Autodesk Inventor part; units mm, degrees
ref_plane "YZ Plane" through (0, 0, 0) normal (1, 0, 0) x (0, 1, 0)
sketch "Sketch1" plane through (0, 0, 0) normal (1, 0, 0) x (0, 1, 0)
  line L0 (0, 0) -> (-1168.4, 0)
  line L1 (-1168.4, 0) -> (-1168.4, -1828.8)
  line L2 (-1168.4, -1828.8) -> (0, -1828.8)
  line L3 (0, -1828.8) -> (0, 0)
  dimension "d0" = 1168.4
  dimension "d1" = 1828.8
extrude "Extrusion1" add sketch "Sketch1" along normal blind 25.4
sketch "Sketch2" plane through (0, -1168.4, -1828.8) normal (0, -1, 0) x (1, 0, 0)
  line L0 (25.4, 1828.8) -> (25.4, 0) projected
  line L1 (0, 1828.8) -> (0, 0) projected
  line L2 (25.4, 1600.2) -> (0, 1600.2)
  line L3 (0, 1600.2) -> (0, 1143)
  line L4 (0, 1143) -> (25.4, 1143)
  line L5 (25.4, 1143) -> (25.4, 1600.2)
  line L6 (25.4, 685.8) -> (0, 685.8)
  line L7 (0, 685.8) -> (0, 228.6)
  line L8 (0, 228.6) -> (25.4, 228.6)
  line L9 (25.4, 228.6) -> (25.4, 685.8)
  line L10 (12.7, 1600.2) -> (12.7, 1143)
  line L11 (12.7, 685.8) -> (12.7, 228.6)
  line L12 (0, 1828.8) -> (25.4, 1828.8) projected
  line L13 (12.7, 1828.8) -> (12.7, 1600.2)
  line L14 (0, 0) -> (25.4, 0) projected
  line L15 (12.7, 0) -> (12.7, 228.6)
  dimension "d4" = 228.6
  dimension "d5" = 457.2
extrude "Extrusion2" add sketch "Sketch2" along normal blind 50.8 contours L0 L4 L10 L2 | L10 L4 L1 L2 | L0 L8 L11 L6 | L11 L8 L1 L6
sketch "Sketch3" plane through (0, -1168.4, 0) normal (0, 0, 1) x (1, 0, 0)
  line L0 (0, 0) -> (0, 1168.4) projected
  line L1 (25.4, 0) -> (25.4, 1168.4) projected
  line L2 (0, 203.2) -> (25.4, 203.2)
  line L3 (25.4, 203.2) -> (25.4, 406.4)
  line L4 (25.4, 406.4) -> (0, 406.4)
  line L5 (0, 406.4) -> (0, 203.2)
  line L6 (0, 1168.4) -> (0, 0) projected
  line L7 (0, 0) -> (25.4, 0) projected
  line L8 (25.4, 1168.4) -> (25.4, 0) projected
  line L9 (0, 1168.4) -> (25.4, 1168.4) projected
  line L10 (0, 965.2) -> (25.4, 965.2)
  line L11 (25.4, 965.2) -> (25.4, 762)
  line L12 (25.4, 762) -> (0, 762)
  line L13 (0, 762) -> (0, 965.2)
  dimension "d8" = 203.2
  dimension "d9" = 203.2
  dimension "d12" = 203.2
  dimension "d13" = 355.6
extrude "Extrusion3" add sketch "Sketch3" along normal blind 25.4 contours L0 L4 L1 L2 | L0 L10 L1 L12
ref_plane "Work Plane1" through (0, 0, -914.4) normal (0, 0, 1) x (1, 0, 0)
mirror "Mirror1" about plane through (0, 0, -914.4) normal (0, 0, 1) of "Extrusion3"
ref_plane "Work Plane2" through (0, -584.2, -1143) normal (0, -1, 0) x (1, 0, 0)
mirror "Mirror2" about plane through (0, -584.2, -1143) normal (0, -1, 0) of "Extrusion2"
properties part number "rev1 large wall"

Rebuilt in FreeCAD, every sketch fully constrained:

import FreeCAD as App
import Part
import Sketcher
Q = App.Units.Quantity


def add_polygon(sketch, points):
    """Adds a closed chain of lines whose ends are joined by coincident constraints."""
    first, n = sketch.GeometryCount, len(points)
    for a, b in zip(points, points[1:] + points[:1]):
        sketch.addGeometry(Part.LineSegment(App.Vector(*a, 0), App.Vector(*b, 0)), False)
    for i in range(n):
        sketch.addConstraint(Sketcher.Constraint("Coincident", first + i, 2, first + (i + 1) % n, 1))

doc = App.newDocument("Part")
params = doc.addObject("Spreadsheet::Sheet", "Params")
for row, (alias, value) in enumerate([
    ("sketch1_width", "46 in"),
    ("sketch1_height", "72 in"),
    ("pad1_length", "1 in"),
    ("sketch2_height", "18 in"),
    ("sketch2_width", "1 in"),
    ("pad2_length", "2 in"),
    ("sketch3_height", "8 in"),
    ("sketch3_width", "1 in"),
    ("pad3_length", "1 in"),
], start=1):
    params.set(f"A{row}", alias)
    params.set(f"B{row}", "=" + value)
    params.setAlias(f"B{row}", alias)

body = doc.addObject("PartDesign::Body", "Body")

sketch1 = doc.addObject("Sketcher::SketchObject", "Sketch")
body.addObject(sketch1)
sketch1.AttachmentSupport = (doc.YZ_Plane, [""])
sketch1.MapMode = "FlatFace"
add_polygon(sketch1, [(0, -1829), (0, 0), (-1168, 0), (-1168, -1829)])
sketch1.addConstraint([
    Sketcher.Constraint("Vertical", 0),
    Sketcher.Constraint("Horizontal", 1),
    Sketcher.Constraint("Vertical", 2),
    Sketcher.Constraint("Horizontal", 3),
    Sketcher.Constraint("Coincident", 0, 2, -1, 1),
    Sketcher.Constraint("DistanceX", 1, 2, 1, 1, Q("46 in")),
    Sketcher.Constraint("DistanceY", 0, 1, 0, 2, Q("72 in")),
])
sketch1.setExpression("Constraints[9]", "Params.sketch1_width")
sketch1.setExpression("Constraints[10]", "Params.sketch1_height")
pad1 = doc.addObject("PartDesign::Pad", "Pad")
body.addObject(pad1)
pad1.Profile = sketch1
pad1.setExpression("Length", "Params.pad1_length")

sketch2 = doc.addObject("Sketcher::SketchObject", "Sketch001")
body.addObject(sketch2)
sketch2.AttachmentSupport = (doc.XZ_Plane, [""])
sketch2.MapMode = "FlatFace"
sketch2.AttachmentOffset = App.Placement(App.Vector(0, 0, 46 * 25.4), App.Rotation())
add_polygon(sketch2, [(25, -686), (25, -229), (0, -229), (0, -686)])
add_polygon(sketch2, [(25, -1600), (25, -1143), (0, -1143), (0, -1600)])
sketch2.addConstraint([
    Sketcher.Constraint("Vertical", 0),
    Sketcher.Constraint("Horizontal", 1),
    Sketcher.Constraint("Vertical", 2),
    Sketcher.Constraint("Horizontal", 3),
    Sketcher.Constraint("Vertical", 4),
    Sketcher.Constraint("Horizontal", 5),
    Sketcher.Constraint("Vertical", 6),
    Sketcher.Constraint("Horizontal", 7),
    Sketcher.Constraint("PointOnObject", 1, 2, -2),
    Sketcher.Constraint("PointOnObject", 5, 2, -2),
    Sketcher.Constraint("Vertical", 3, 2, 4, 2),
    Sketcher.Constraint("Equal", 2, 4),
    Sketcher.Constraint("DistanceY", 0, 1, 0, 2, Q("18 in")),
    Sketcher.Constraint("DistanceY", 0, 2, -1, 1, Q("9 in")),
    Sketcher.Constraint("DistanceY", 4, 2, 3, 2, Q("18 in")),
    Sketcher.Constraint("DistanceX", 1, 2, 1, 1, Q("1 in")),
])
sketch2.setExpression("Constraints[20]", "Params.sketch2_height")
sketch2.setExpression("Constraints[23]", "Params.sketch2_width")
pad2 = doc.addObject("PartDesign::Pad", "Pad001")
body.addObject(pad2)
pad2.Profile = sketch2
pad2.setExpression("Length", "Params.pad2_length")

sketch3 = doc.addObject("Sketcher::SketchObject", "Sketch002")
body.addObject(sketch3)
sketch3.AttachmentSupport = (doc.XY_Plane, [""])
sketch3.MapMode = "FlatFace"
add_polygon(sketch3, [(0, -762), (0, -965), (25, -965), (25, -762)])
add_polygon(sketch3, [(0, -203), (0, -406), (25, -406), (25, -203)])
sketch3.addConstraint([
    Sketcher.Constraint("Vertical", 0),
    Sketcher.Constraint("Horizontal", 1),
    Sketcher.Constraint("Vertical", 2),
    Sketcher.Constraint("Horizontal", 3),
    Sketcher.Constraint("Vertical", 4),
    Sketcher.Constraint("Horizontal", 5),
    Sketcher.Constraint("Vertical", 6),
    Sketcher.Constraint("Horizontal", 7),
    Sketcher.Constraint("PointOnObject", 0, 2, -2),
    Sketcher.Constraint("PointOnObject", 4, 2, -2),
    Sketcher.Constraint("Vertical", 2, 2, 5, 2),
    Sketcher.Constraint("Equal", 2, 4),
    Sketcher.Constraint("DistanceY", 0, 2, 0, 1, Q("8 in")),
    Sketcher.Constraint("DistanceY", 6, 2, -1, 1, Q("8 in")),
    Sketcher.Constraint("DistanceY", 3, 2, 4, 2, Q("14 in")),
    Sketcher.Constraint("DistanceX", 1, 1, 1, 2, Q("1 in")),
])
sketch3.setExpression("Constraints[20]", "Params.sketch3_height")
sketch3.setExpression("Constraints[23]", "Params.sketch3_width")
pad3 = doc.addObject("PartDesign::Pad", "Pad002")
body.addObject(pad3)
pad3.Profile = sketch3
pad3.setExpression("Length", "Params.pad3_length")
doc.recompute()

datumplane = doc.addObject("PartDesign::Plane", "DatumPlane")
body.addObject(datumplane)
datumplane.AttachmentSupport = (doc.XY_Plane, [""])
datumplane.MapMode = "FlatFace"
datumplane.AttachmentOffset = App.Placement(App.Vector(0, 0, -36 * 25.4), App.Rotation())
mirrored = doc.addObject("PartDesign::Mirrored", "Mirrored")
body.addObject(mirrored)
mirrored.Originals = [pad3]
mirrored.MirrorPlane = (datumplane, [""])
body.Tip = mirrored
doc.recompute()

datumplane2 = doc.addObject("PartDesign::Plane", "DatumPlane001")
body.addObject(datumplane2)
datumplane2.AttachmentSupport = (doc.XZ_Plane, [""])
datumplane2.MapMode = "FlatFace"
datumplane2.AttachmentOffset = App.Placement(App.Vector(0, 0, 23 * 25.4), App.Rotation())
mirrored2 = doc.addObject("PartDesign::Mirrored", "Mirrored001")
body.addObject(mirrored2)
mirrored2.Originals = [pad2]
mirrored2.MirrorPlane = (datumplane2, [""])
body.Tip = mirrored2

doc.recompute()
